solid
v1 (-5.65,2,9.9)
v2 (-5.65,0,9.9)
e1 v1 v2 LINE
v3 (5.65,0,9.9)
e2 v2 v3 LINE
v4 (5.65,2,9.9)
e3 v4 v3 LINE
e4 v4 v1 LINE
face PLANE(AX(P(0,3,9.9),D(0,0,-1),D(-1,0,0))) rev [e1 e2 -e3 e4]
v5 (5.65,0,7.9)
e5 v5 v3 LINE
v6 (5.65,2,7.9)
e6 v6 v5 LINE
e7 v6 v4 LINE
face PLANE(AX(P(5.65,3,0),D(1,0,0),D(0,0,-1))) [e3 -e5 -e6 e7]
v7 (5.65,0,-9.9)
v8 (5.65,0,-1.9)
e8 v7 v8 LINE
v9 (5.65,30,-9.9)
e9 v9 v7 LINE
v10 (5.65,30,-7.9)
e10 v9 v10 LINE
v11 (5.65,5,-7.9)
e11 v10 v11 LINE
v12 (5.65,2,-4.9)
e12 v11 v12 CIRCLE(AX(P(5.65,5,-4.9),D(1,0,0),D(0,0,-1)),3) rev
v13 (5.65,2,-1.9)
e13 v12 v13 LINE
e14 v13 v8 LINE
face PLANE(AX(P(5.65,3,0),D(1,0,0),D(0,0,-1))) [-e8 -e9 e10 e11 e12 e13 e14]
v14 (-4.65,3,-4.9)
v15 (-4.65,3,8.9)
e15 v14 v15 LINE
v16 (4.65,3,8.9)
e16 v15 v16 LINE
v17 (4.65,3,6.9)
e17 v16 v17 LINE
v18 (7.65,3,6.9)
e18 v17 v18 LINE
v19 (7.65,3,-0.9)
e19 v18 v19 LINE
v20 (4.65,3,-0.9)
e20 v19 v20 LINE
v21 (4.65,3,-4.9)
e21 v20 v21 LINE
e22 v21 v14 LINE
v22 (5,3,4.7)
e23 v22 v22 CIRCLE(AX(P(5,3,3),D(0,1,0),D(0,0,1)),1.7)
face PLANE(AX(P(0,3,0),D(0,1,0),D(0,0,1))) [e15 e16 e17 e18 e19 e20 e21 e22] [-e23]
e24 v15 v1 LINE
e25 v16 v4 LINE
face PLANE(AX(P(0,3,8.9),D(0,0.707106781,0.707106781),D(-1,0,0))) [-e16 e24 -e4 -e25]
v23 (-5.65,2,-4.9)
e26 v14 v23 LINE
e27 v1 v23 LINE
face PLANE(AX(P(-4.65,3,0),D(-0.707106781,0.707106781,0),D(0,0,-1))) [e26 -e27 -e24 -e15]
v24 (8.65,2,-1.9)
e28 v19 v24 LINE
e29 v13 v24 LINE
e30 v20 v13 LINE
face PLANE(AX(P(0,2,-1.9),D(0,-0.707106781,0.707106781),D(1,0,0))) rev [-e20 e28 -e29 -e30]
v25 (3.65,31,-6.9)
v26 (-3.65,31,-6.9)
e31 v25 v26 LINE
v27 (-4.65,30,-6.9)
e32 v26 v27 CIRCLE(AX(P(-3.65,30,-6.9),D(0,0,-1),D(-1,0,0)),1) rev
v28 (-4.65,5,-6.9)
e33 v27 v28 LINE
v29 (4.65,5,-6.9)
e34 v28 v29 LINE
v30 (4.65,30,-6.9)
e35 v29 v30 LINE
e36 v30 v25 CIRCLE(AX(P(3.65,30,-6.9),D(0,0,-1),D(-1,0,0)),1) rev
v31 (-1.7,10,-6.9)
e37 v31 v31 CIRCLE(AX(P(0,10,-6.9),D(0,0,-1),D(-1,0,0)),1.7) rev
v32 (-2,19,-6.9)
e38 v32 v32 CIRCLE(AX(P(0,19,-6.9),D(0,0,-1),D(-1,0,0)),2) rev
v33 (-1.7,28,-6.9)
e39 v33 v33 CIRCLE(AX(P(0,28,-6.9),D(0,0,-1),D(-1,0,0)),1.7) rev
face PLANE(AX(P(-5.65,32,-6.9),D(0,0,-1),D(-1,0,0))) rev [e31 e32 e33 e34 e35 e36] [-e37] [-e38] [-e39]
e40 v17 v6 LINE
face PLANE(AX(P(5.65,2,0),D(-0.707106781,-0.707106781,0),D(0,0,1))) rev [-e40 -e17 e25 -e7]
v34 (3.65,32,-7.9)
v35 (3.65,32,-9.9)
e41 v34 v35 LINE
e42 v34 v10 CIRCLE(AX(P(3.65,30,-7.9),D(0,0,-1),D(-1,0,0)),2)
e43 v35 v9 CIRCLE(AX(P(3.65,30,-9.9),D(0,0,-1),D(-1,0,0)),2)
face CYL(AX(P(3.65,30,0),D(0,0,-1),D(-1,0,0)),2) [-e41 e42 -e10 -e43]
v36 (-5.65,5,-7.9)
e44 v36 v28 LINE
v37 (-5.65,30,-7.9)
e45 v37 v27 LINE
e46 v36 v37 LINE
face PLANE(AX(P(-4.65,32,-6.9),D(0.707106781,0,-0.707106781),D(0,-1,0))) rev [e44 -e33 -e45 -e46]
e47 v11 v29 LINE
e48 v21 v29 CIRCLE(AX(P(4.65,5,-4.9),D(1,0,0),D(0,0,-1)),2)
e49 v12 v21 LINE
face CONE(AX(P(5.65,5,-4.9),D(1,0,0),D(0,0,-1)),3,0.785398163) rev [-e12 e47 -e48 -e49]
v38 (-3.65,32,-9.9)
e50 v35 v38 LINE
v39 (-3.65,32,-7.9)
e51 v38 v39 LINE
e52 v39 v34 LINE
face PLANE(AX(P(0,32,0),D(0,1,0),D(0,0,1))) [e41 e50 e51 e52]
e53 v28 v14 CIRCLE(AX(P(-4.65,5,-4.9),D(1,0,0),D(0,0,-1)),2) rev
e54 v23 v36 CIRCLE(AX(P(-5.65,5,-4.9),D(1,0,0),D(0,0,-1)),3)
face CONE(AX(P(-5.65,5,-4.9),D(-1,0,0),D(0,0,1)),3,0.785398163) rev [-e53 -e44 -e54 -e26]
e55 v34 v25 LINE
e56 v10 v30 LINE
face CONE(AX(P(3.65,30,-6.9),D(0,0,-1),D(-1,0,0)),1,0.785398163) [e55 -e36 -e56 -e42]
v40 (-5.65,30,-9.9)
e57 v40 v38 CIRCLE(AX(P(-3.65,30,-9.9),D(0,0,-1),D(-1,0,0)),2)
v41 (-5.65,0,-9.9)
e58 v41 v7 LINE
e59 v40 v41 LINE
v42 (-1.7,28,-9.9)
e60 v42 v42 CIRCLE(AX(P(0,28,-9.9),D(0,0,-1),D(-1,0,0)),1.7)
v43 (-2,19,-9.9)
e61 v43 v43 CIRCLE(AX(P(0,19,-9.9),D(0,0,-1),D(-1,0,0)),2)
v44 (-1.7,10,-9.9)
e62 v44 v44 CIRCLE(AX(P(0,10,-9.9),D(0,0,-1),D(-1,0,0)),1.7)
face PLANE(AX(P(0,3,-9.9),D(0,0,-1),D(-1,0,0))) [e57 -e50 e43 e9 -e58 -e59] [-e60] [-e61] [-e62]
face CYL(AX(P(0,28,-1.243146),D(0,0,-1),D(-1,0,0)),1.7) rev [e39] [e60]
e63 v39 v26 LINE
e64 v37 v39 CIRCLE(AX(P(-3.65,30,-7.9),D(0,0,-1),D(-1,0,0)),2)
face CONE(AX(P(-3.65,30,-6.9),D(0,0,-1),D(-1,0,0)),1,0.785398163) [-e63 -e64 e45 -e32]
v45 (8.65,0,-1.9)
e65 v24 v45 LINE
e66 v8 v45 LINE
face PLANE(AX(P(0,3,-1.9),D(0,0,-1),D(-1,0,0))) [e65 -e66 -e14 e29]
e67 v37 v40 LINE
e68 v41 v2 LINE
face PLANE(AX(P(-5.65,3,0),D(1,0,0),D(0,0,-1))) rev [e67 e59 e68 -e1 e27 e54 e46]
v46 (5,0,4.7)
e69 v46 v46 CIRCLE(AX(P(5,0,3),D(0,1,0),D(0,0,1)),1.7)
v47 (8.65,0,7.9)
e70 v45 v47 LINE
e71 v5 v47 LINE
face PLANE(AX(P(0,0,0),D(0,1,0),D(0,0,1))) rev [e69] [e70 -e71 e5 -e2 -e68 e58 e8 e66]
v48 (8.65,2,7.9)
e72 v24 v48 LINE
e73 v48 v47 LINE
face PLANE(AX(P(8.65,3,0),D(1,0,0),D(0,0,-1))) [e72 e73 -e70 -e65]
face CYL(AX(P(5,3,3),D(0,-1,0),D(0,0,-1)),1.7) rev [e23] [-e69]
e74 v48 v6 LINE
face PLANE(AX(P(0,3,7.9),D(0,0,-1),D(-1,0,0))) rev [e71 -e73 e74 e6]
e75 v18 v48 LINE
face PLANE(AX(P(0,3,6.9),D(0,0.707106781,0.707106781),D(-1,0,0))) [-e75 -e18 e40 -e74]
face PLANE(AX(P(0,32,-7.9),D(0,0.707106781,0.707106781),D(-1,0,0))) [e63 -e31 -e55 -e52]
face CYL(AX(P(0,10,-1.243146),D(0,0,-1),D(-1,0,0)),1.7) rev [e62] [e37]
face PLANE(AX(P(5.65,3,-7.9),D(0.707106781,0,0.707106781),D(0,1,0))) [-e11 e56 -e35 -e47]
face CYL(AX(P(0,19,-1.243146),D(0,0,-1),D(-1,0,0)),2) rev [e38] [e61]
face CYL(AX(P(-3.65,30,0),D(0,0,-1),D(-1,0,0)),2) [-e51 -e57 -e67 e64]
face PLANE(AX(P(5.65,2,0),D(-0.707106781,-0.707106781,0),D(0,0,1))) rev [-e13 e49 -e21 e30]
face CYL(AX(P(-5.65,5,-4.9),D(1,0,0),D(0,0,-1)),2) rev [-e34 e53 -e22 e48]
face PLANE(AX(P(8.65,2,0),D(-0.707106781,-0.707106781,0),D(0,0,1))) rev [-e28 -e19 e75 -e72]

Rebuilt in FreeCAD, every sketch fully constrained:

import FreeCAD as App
import Part
import Sketcher
from FreeCAD import Vector


def edges_at(feature, points):
    """Names of the edges that pass closest to the given points."""
    edges = feature.Shape.Edges
    near = lambda p: min(range(len(edges)), key=lambda i: edges[i].distToShape(Part.Vertex(*p))[0])
    return sorted({f"Edge{near(p) + 1}" for p in points})

doc = App.newDocument("Part")
body = doc.addObject("PartDesign::Body", "Body")

# Sketch on XZ plane
sketch1 = doc.addObject("Sketcher::SketchObject", "Sketch")
body.addObject(sketch1)
sketch1.AttachmentSupport = (doc.XZ_Plane, [""])
sketch1.MapMode = "FlatFace"
sketch1.addGeometry([
    Part.LineSegment(Vector(5.65, -9.9, 0), Vector(-5.65, -9.9, 0)),  # 0
    Part.LineSegment(Vector(-5.65, -9.9, 0), Vector(-5.65, 9.9, 0)),  # 1
    Part.LineSegment(Vector(-5.65, 9.9, 0), Vector(5.65, 9.9, 0)),  # 2
    Part.LineSegment(Vector(5.65, 9.9, 0), Vector(5.65, 7.9, 0)),  # 3
    Part.LineSegment(Vector(5.65, 7.9, 0), Vector(8.65, 7.9, 0)),  # 4
    Part.LineSegment(Vector(8.65, 7.9, 0), Vector(8.65, -1.9, 0)),  # 5
    Part.LineSegment(Vector(8.65, -1.9, 0), Vector(5.65, -1.9, 0)),  # 6
    Part.LineSegment(Vector(5.65, -1.9, 0), Vector(5.65, -9.9, 0)),  # 7
    Part.Circle(Vector(5, 3, 0), Vector(0, 0, 1), 1.7),  # 8
], False)
sketch1.addConstraint([
    Sketcher.Constraint("Coincident", 0, 2, 1, 1),
    Sketcher.Constraint("Coincident", 1, 2, 2, 1),
    Sketcher.Constraint("Coincident", 2, 2, 3, 1),
    Sketcher.Constraint("Coincident", 3, 2, 4, 1),
    Sketcher.Constraint("Coincident", 4, 2, 5, 1),
    Sketcher.Constraint("Coincident", 5, 2, 6, 1),
    Sketcher.Constraint("Coincident", 6, 2, 7, 1),
    Sketcher.Constraint("Coincident", 7, 2, 0, 1),
    Sketcher.Constraint("Horizontal", 0),
    Sketcher.Constraint("Vertical", 1),
    Sketcher.Constraint("Horizontal", 2),
    Sketcher.Constraint("Vertical", 3),
    Sketcher.Constraint("Horizontal", 4),
    Sketcher.Constraint("Vertical", 5),
    Sketcher.Constraint("Horizontal", 6),
    Sketcher.Constraint("Vertical", 7),
    Sketcher.Constraint("Symmetric", 0, 2, 2, 2, -1, 1),
    Sketcher.Constraint("Vertical", 3, 2, 6, 2),
    Sketcher.Constraint("Diameter", 8, 3.4),
    Sketcher.Constraint("DistanceX", 4, 1, 4, 2, 3.0),
    Sketcher.Constraint("DistanceY", 3, 2, 3, 1, 2.0),
    Sketcher.Constraint("DistanceY", 7, 2, 7, 1, 8.0),
    Sketcher.Constraint("DistanceX", 0, 2, 0, 1, 11.3),
    Sketcher.Constraint("DistanceY", 1, 1, 1, 2, 19.8),
    Sketcher.Constraint("DistanceX", -1, 1, 8, 3, 5.0),
    Sketcher.Constraint("DistanceY", -1, 1, 8, 3, 3.0),
])
pad1 = doc.addObject("PartDesign::Pad", "Pad")
body.addObject(pad1)
pad1.Profile = sketch1
pad1.Length = 3
pad1.Reversed = True

# Sketch on XZ plane
sketch2 = doc.addObject("Sketcher::SketchObject", "Sketch001")
body.addObject(sketch2)
sketch2.AttachmentSupport = (doc.XZ_Plane, [""])
sketch2.MapMode = "FlatFace"
sketch2.AttachmentOffset = App.Placement(Vector(0, 0, -3), App.Rotation())
sketch2.addGeometry([
    Part.LineSegment(Vector(-5.65, -9.9, 0), Vector(-5.65, -6.9, 0)),
    Part.LineSegment(Vector(-5.65, -6.9, 0), Vector(5.65, -6.9, 0)),
    Part.LineSegment(Vector(5.65, -6.9, 0), Vector(5.65, -9.9, 0)),
    Part.LineSegment(Vector(5.65, -9.9, 0), Vector(-5.65, -9.9, 0)),
], False)
sketch2.addConstraint([
    Sketcher.Constraint("Coincident", 0, 2, 1, 1),
    Sketcher.Constraint("Coincident", 1, 2, 2, 1),
    Sketcher.Constraint("Coincident", 2, 2, 3, 1),
    Sketcher.Constraint("Coincident", 3, 2, 0, 1),
    Sketcher.Constraint("Vertical", 0),
    Sketcher.Constraint("Horizontal", 1),
    Sketcher.Constraint("Vertical", 2),
    Sketcher.Constraint("Horizontal", 3),
    Sketcher.Constraint("DistanceY", 0, 1, 0, 2, 3.0),
    Sketcher.Constraint("DistanceX", 1, 1, 1, 2, 11.3),
    Sketcher.Constraint("DistanceY", 0, 2, -1, 1, 6.9),
    Sketcher.Constraint("DistanceX", 0, 2, -1, 1, 5.65),
])
pad2 = doc.addObject("PartDesign::Pad", "Pad001")
body.addObject(pad2)
pad2.Profile = sketch2
pad2.Length = 29
pad2.Reversed = True

# Sketch on XY plane
sketch3 = doc.addObject("Sketcher::SketchObject", "Sketch002")
body.addObject(sketch3)
sketch3.AttachmentSupport = (doc.XY_Plane, [""])
sketch3.MapMode = "FlatFace"
sketch3.AttachmentOffset = App.Placement(Vector(0, 0, -9.9), App.Rotation())
sketch3.addGeometry([
    Part.Circle(Vector(0, 28, 0), Vector(0, 0, 1), 1.7),
    Part.Circle(Vector(0, 10, 0), Vector(0, 0, 1), 1.7),
    Part.Circle(Vector(0, 19, 0), Vector(0, 0, 1), 2),
], False)
sketch3.addConstraint([
    Sketcher.Constraint("Equal", 0, 1),
    Sketcher.Constraint("PointOnObject", 0, 3, -2),
    Sketcher.Constraint("PointOnObject", 1, 3, -2),
    Sketcher.Constraint("PointOnObject", 2, 3, -2),
    Sketcher.Constraint("Diameter", 2, 4.0),
    Sketcher.Constraint("Diameter", 0, 3.4),
    Sketcher.Constraint("DistanceY", -1, 1, 0, 3, 28.0),
    Sketcher.Constraint("DistanceY", -1, 1, 1, 3, 10.0),
    Sketcher.Constraint("DistanceY", -1, 1, 2, 3, 19.0),
])
pocket1 = doc.addObject("PartDesign::Pocket", "Pocket")
body.addObject(pocket1)
pocket1.Profile = sketch3
pocket1.Length = 3
pocket1.Reversed = True
doc.recompute()

fillet = doc.addObject("PartDesign::Fillet", "Fillet")
body.addObject(fillet)
fillet.Base = (pocket1, edges_at(pocket1, [(0, 3, -6.9), (-5.65, 32, -8.4), (5.65, 32, -8.4)]))
fillet.Radius = 2
doc.recompute()

chamfer = doc.addObject("PartDesign::Chamfer", "Chamfer")
body.addObject(chamfer)
chamfer.Base = (fillet, edges_at(fillet, [
    (7.15, 3, -1.9),
    (0, 3, 9.9),
    (5.65, 3, 8.9),
    (7.15, 3, 7.9),
    (8.65, 3, 3),
    (5.65, 17.5, -6.9),
    (0, 32, -6.9),
    (-5.65, 17.5, -6.9),
    (-5.064, 31.414, -6.9),
    (5.064, 31.414, -6.9),
    (-5.65, 3, 2.5),
    (5.65, 3, -3.4),
    (5.65, 3.586, -6.314),
    (-5.65, 3.586, -6.314),
]))
chamfer.Size = 1

doc.recompute()
